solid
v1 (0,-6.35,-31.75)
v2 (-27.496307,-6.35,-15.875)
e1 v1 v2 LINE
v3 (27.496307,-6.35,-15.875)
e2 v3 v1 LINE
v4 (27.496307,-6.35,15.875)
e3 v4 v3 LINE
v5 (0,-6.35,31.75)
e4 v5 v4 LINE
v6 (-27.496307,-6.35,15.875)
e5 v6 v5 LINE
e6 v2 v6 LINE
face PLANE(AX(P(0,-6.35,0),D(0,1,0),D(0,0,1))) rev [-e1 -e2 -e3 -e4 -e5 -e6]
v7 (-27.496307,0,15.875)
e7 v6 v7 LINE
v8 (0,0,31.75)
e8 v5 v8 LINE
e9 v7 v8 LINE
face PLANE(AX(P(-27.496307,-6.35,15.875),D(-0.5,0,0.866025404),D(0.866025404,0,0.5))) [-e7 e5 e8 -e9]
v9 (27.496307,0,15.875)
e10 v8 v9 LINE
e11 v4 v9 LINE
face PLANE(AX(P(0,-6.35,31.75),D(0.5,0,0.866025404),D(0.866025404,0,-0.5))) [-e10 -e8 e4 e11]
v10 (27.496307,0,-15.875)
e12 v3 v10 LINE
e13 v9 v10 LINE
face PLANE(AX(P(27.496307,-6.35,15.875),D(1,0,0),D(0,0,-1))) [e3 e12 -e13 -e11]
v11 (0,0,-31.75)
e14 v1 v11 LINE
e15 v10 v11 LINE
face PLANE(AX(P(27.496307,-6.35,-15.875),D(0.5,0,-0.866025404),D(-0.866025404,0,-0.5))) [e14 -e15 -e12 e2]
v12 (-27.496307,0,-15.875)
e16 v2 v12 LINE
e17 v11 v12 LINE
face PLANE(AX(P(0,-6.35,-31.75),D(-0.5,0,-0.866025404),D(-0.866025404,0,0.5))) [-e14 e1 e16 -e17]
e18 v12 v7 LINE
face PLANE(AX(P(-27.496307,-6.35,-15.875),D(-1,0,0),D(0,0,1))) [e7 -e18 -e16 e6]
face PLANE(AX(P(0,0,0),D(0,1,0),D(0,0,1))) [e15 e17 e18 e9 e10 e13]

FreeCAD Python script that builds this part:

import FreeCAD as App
import Part
import Sketcher
from FreeCAD import Vector
Q = App.Units.Quantity


def add_polygon(sketch, points):
    """Adds a closed chain of lines whose ends are joined by coincident constraints."""
    first, n = sketch.GeometryCount, len(points)
    for a, b in zip(points, points[1:] + points[:1]):
        sketch.addGeometry(Part.LineSegment(App.Vector(*a, 0), App.Vector(*b, 0)), False)
    for i in range(n):
        sketch.addConstraint(Sketcher.Constraint("Coincident", first + i, 2, first + (i + 1) % n, 1))

doc = App.newDocument("Part")
params = doc.addObject("Spreadsheet::Sheet", "Params")
for row, (alias, value) in enumerate([
    ("sketch1_height", "1.25 in"),
    ("pad1_length", "0.25 in"),
], start=1):
    params.set(f"A{row}", alias)
    params.set(f"B{row}", "=" + value)
    params.setAlias(f"B{row}", alias)

body = doc.addObject("PartDesign::Body", "Body")

# Sketch on XZ plane
sketch1 = body.newObject("Sketcher::SketchObject", "Sketch")
sketch1.AttachmentSupport = (doc.getObject("XZ_Plane"), [""])
sketch1.MapMode = "FlatFace"
add_polygon(sketch1, [(27, -16), (0, -32), (-27, -16), (-27, 16), (0, 32), (27, 16)])  # lines 0-5
sketch1.addConstraint([
    Sketcher.Constraint("Vertical", 2),
    Sketcher.Constraint("Vertical", 5),
    Sketcher.Constraint("Symmetric", 0, 2, 3, 2, -1, 1),
    Sketcher.Constraint("Symmetric", 1, 2, 4, 2, -1, 1),
    Sketcher.Constraint("PointOnObject", 0, 2, -2),
    Sketcher.Constraint("Parallel", 0, 3),
    Sketcher.Constraint("Horizontal", 2, 2, 4, 2),
    Sketcher.Constraint("Angle", 0, Q("-150 deg")),
    Sketcher.Constraint("DistanceY", 2, 1, 2, 2, Q("1.25 in")),
    Sketcher.Constraint("DistanceY", 0, 2, 3, 2, Q("2.5 in")),
])
sketch1.setExpression("Constraints[14]", "Params.sketch1_height")
pad1 = body.newObject("PartDesign::Pad", "Pad")
pad1.Profile = sketch1
pad1.setExpression("Length", "Params.pad1_length")

doc.recompute()
